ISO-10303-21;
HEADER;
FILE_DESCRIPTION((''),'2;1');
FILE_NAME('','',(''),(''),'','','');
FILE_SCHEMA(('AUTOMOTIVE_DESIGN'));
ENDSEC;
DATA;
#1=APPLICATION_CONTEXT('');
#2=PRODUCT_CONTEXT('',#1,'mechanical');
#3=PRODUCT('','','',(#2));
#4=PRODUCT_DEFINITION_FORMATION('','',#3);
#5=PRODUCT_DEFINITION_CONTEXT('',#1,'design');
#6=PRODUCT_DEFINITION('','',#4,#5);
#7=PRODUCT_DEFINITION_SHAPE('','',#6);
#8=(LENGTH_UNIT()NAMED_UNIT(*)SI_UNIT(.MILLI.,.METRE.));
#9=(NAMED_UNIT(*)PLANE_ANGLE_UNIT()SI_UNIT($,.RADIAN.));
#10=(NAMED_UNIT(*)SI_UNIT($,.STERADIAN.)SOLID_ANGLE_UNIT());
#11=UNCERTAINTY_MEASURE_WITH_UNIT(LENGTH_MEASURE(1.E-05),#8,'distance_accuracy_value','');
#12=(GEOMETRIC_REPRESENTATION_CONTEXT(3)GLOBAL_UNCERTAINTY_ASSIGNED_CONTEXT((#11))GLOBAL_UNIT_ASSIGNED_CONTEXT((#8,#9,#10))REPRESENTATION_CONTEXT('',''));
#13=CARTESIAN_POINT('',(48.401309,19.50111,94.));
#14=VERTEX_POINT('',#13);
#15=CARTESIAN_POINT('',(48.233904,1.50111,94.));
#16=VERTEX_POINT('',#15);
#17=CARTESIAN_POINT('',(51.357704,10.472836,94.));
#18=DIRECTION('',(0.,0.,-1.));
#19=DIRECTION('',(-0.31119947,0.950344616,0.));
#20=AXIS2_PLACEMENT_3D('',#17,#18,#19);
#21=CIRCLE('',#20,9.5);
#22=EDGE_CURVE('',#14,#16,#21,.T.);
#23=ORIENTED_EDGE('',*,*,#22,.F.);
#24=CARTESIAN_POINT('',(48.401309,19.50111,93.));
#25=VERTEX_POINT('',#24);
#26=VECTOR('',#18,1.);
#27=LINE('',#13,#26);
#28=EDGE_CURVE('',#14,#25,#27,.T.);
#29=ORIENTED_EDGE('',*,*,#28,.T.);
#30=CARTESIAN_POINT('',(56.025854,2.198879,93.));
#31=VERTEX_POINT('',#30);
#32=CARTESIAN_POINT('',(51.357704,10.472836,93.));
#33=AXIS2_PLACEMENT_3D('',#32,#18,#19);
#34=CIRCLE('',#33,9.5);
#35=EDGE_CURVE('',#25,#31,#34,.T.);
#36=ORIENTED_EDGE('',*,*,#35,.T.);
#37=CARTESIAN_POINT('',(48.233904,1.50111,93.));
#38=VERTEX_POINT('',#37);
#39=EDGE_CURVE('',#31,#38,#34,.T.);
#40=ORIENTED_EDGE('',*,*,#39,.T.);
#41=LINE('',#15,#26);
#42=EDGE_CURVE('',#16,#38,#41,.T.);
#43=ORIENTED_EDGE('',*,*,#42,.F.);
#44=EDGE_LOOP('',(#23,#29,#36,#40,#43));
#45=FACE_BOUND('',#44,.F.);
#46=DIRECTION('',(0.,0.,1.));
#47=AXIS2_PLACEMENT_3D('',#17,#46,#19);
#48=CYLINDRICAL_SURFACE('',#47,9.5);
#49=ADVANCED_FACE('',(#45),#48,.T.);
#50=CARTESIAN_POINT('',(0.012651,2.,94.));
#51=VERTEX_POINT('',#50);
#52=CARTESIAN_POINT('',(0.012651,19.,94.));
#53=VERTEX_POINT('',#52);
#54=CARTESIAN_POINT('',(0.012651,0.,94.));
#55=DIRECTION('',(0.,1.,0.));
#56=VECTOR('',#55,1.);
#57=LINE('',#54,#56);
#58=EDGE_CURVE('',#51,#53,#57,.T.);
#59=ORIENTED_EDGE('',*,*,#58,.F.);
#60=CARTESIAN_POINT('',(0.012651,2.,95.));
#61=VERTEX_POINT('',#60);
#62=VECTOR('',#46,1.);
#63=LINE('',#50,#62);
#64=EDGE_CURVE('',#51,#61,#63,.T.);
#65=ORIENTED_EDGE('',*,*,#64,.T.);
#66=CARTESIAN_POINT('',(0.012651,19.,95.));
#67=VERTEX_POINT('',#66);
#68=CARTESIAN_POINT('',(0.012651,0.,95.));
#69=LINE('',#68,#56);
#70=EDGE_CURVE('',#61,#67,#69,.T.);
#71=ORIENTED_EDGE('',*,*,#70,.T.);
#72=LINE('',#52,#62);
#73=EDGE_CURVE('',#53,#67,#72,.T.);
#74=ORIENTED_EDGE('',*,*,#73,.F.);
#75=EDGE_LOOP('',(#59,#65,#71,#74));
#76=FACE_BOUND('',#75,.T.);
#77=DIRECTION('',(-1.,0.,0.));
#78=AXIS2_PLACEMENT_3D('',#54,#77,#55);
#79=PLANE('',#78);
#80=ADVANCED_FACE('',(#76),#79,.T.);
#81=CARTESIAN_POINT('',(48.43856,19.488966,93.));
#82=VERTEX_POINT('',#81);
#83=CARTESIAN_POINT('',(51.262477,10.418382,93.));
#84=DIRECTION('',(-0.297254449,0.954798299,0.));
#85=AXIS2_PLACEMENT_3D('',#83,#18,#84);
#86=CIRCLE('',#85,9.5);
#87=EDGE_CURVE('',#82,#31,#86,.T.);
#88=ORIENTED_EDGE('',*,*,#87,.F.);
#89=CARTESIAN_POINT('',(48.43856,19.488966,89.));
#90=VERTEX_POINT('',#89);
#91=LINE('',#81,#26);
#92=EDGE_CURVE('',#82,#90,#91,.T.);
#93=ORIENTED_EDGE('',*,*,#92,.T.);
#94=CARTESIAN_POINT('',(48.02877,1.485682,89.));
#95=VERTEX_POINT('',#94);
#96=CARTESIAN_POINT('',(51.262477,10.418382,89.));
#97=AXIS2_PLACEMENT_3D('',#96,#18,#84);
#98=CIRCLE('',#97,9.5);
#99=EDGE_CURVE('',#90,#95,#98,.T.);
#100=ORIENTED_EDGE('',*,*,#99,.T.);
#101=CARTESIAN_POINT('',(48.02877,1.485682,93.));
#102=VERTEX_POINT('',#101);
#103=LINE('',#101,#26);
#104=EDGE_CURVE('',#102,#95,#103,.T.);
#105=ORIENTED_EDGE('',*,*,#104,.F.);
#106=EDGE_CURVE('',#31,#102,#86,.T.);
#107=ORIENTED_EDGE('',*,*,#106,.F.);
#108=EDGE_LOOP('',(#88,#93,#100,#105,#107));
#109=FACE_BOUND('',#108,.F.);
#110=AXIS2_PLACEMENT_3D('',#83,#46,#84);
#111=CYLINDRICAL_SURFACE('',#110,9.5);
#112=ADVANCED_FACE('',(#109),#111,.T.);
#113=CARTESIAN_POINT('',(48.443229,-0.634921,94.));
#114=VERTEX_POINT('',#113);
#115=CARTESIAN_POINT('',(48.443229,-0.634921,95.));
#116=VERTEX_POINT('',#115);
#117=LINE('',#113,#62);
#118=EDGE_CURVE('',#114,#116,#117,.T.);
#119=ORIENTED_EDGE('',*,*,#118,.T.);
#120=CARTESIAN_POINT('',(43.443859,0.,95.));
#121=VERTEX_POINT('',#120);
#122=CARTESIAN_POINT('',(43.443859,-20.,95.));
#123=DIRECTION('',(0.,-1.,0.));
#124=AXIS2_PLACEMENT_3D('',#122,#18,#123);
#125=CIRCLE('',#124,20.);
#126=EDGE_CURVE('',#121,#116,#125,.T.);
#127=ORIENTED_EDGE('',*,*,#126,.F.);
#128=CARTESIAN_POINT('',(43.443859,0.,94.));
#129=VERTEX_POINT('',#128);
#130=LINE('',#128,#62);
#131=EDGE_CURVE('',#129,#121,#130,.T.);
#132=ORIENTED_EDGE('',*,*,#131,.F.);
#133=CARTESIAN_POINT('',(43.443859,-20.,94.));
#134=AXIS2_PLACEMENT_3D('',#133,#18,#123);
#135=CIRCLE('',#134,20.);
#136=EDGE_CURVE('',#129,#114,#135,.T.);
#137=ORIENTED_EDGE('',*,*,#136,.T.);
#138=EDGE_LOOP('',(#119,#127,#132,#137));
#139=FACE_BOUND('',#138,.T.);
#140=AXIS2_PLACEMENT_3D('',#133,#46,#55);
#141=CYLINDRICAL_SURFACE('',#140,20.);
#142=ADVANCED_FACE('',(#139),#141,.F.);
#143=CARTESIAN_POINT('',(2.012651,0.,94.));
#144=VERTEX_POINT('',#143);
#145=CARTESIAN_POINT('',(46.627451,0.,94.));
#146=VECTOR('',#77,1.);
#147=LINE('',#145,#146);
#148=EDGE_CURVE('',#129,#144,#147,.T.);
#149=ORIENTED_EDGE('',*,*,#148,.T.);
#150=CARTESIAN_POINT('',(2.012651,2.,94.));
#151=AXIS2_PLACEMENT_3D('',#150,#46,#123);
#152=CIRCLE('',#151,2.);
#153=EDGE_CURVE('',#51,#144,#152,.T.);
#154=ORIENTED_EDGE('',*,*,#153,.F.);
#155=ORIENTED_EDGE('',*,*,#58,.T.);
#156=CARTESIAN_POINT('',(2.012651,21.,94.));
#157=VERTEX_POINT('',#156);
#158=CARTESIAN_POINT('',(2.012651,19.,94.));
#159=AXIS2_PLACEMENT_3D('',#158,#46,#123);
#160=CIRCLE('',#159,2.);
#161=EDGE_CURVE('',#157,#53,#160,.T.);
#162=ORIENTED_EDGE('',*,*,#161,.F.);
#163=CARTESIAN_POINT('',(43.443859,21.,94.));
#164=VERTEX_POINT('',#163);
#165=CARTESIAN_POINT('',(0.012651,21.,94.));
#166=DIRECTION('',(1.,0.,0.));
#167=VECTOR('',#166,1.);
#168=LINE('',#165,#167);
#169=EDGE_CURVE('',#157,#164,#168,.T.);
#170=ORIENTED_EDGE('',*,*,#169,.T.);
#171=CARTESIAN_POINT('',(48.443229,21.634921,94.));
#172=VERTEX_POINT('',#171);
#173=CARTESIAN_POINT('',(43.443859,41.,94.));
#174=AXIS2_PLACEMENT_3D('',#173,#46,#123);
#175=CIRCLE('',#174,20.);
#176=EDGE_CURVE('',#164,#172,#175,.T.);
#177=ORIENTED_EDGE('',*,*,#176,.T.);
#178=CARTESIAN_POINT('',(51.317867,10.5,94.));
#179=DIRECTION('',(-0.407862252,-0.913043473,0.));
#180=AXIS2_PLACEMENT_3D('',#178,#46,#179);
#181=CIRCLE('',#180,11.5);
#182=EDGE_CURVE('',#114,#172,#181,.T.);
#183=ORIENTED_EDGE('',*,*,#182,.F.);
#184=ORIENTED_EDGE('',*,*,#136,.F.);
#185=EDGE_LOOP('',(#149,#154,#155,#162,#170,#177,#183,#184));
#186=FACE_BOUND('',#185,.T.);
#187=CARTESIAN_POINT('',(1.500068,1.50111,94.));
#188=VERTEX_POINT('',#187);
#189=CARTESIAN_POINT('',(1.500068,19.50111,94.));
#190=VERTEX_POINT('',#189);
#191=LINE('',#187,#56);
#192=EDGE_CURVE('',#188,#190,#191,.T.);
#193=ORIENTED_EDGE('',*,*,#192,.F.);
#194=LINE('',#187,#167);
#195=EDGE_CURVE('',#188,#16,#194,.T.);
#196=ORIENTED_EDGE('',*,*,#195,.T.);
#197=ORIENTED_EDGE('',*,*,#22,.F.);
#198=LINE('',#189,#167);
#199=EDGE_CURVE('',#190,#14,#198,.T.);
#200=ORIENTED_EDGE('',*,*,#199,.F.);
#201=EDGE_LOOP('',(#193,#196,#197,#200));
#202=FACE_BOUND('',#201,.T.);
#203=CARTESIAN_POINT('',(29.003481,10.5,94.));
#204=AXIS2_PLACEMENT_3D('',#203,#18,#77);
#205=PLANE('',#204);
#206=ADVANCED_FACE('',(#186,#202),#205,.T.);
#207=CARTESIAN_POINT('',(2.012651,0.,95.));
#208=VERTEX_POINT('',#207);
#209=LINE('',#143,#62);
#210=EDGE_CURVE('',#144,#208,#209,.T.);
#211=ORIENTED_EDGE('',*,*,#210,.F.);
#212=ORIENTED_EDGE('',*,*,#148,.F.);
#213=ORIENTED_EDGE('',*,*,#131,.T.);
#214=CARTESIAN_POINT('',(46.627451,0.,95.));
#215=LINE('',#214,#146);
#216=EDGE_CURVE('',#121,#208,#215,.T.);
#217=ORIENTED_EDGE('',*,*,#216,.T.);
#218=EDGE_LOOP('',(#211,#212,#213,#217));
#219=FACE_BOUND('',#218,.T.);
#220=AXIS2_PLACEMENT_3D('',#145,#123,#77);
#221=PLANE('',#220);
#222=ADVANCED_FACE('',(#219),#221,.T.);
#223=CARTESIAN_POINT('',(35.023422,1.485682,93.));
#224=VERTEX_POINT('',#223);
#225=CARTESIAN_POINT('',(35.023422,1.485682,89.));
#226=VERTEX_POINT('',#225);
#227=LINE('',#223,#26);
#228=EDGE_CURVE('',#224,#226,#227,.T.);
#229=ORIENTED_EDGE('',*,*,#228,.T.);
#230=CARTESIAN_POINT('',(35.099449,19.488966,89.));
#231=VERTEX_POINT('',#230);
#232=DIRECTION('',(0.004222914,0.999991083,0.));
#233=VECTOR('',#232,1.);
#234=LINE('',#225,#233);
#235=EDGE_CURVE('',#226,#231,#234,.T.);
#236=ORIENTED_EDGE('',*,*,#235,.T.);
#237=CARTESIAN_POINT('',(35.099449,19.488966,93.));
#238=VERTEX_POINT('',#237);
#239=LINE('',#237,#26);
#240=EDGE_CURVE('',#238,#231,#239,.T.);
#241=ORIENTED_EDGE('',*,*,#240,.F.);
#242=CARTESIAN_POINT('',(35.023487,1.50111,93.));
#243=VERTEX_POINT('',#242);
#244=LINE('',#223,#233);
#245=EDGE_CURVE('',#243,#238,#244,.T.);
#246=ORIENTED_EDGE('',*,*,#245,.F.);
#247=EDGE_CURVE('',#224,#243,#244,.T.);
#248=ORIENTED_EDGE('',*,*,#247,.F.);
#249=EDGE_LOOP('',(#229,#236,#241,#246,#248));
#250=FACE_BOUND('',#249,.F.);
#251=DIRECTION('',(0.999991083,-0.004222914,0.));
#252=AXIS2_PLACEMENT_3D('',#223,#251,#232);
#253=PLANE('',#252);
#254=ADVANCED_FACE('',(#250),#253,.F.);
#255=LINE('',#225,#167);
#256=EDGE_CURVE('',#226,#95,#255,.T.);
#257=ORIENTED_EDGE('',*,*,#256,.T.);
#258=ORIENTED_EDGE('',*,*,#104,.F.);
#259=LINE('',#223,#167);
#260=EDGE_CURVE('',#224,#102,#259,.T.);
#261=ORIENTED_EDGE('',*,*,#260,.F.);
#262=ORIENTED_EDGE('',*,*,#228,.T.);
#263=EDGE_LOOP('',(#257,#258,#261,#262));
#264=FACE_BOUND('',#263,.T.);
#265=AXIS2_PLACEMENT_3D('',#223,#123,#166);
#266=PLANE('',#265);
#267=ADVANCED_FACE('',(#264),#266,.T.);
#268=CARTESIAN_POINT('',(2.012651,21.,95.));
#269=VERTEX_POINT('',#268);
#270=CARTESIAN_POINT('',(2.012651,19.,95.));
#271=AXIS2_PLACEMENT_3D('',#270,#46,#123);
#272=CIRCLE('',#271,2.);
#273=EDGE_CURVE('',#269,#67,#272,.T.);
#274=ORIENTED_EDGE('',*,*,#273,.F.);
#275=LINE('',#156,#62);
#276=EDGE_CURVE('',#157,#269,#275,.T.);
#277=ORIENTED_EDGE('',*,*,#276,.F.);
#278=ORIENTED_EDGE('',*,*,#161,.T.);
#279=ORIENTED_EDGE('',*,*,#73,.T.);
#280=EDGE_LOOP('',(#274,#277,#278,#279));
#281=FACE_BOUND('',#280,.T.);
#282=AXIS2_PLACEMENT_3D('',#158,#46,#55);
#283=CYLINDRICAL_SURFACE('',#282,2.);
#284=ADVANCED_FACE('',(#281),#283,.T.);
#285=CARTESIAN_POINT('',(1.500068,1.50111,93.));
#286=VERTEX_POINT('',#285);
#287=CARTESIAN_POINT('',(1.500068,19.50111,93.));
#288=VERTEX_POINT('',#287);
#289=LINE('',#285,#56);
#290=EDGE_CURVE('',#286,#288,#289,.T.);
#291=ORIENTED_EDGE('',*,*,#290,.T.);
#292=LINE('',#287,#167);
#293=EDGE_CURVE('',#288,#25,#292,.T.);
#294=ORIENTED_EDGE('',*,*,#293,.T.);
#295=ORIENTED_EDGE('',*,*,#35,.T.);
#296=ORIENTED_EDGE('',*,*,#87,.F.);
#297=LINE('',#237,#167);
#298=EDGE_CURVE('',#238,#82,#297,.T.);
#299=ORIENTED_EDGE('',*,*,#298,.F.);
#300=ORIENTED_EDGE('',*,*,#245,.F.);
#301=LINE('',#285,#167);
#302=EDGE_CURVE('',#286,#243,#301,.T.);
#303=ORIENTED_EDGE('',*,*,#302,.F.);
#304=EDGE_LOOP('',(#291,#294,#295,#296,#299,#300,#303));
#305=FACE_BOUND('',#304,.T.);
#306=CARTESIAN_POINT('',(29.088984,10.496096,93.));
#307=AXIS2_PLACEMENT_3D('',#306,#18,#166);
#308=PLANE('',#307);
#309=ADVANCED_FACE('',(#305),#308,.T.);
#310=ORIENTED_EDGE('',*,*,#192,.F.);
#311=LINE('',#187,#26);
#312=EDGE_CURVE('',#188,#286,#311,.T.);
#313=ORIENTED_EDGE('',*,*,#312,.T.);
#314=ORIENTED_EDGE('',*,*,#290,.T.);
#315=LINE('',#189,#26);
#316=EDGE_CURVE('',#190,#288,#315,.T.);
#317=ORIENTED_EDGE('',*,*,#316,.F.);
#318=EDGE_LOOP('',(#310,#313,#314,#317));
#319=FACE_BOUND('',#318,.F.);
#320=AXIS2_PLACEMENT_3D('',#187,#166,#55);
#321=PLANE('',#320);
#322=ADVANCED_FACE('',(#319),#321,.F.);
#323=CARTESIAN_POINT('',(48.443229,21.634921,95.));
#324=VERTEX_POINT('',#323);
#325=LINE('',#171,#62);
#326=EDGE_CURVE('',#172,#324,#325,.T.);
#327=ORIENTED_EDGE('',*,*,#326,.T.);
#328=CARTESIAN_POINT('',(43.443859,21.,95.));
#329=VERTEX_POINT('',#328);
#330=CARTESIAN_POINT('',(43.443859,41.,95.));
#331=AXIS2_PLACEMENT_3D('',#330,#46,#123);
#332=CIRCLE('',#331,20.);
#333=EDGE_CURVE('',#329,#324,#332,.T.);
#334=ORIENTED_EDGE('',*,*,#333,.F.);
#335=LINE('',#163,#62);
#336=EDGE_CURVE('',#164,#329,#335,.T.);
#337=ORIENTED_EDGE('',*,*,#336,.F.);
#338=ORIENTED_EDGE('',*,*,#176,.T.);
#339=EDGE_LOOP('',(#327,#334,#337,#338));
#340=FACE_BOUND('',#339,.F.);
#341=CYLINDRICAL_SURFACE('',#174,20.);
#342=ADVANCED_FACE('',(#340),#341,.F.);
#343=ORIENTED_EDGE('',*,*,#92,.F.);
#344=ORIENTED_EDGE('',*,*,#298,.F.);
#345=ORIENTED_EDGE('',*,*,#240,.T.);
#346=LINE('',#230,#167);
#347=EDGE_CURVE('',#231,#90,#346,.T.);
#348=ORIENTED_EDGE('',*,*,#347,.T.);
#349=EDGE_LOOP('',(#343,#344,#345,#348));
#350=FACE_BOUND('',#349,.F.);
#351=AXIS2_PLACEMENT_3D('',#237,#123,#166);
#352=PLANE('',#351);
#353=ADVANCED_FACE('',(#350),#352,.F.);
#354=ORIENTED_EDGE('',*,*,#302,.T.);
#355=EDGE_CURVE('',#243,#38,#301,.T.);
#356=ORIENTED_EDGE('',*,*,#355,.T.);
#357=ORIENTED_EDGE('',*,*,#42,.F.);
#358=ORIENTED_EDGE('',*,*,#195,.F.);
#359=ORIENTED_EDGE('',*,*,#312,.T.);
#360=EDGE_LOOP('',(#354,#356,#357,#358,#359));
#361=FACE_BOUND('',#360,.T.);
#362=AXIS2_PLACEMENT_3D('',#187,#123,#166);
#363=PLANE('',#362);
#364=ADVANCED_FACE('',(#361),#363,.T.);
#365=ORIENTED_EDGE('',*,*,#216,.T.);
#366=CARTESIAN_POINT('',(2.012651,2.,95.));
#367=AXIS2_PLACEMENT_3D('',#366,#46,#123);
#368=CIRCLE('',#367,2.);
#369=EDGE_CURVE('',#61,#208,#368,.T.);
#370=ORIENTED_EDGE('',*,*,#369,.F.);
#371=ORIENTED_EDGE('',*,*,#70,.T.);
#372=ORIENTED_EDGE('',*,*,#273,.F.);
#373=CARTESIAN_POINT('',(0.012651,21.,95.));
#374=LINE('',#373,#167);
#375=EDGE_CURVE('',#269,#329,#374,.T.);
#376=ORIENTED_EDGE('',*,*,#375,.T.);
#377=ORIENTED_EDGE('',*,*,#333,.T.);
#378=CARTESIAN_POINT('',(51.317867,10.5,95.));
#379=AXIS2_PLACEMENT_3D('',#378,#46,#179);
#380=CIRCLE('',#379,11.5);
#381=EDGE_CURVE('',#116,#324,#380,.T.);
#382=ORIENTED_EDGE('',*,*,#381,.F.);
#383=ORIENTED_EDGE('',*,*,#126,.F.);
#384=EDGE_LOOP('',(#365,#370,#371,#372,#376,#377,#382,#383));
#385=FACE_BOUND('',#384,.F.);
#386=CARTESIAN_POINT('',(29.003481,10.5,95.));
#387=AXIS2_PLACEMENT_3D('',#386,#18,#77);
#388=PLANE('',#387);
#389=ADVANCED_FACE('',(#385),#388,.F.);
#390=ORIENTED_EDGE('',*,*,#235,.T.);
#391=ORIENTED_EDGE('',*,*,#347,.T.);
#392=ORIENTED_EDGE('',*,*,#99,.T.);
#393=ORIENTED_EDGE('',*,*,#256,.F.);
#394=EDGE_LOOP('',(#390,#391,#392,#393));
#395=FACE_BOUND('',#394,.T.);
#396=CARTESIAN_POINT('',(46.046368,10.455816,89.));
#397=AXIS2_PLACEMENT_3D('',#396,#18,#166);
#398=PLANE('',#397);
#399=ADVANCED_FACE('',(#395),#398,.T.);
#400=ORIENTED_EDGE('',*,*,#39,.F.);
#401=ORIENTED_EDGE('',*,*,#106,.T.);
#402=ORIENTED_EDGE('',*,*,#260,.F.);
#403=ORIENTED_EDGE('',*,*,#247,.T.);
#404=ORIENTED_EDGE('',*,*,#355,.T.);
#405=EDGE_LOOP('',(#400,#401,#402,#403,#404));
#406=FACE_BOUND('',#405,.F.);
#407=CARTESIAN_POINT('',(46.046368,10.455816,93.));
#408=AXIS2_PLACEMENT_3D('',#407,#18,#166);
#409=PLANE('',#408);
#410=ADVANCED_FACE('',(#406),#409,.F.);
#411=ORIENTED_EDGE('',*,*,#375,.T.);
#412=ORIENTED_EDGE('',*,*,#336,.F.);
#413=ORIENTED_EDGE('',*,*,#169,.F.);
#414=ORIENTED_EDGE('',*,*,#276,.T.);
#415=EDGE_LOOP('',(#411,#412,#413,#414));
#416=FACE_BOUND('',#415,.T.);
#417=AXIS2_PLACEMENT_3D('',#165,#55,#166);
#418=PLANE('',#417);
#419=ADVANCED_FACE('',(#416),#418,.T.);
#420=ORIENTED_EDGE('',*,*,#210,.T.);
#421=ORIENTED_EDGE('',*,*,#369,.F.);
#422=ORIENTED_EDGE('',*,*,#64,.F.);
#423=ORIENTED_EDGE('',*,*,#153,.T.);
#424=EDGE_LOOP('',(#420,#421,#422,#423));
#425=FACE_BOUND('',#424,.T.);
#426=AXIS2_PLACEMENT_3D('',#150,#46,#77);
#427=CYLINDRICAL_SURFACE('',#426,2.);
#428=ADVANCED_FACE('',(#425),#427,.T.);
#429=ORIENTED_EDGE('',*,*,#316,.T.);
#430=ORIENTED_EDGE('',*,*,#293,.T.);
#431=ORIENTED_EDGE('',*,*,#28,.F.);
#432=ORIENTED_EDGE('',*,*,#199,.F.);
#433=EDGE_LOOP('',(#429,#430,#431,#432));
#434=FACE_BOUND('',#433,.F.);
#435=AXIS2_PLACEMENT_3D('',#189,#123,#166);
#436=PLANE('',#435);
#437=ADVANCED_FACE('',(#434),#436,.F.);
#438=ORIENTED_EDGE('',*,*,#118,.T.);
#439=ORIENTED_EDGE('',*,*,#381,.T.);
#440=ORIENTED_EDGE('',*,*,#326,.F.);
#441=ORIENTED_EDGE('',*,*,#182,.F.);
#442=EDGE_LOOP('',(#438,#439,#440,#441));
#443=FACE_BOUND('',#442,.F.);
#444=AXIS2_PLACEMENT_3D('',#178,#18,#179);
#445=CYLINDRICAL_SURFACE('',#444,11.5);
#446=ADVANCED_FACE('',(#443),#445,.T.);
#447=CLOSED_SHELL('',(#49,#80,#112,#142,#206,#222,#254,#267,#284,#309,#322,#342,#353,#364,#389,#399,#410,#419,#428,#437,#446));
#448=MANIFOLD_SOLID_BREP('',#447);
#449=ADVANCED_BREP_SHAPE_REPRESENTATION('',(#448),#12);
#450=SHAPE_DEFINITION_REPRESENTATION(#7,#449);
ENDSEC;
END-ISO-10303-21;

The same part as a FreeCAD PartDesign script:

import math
import FreeCAD as App
import Part
import Sketcher


def edges_at(feature, points):
    """Names of the edges that pass closest to the given points."""
    edges = feature.Shape.Edges
    near = lambda p: min(range(len(edges)), key=lambda i: edges[i].distToShape(Part.Vertex(*p))[0])
    return sorted({f"Edge{near(p) + 1}" for p in points})

doc = App.newDocument("Part")
body = doc.addObject("PartDesign::Body", "Body")

# Sketch on XY plane
sketch1 = doc.addObject("Sketcher::SketchObject", "Sketch")
body.addObject(sketch1)
sketch1.AttachmentSupport = (doc.XY_Plane, [""])
sketch1.MapMode = "FlatFace"
sketch1.AttachmentOffset = App.Placement(App.Vector(0, 0, 94), App.Rotation())
sketch1.addGeometry([
    Part.LineSegment(App.Vector(47, 21, 0), App.Vector(0, 21, 0)),
    Part.LineSegment(App.Vector(0, 21, 0), App.Vector(0, 0, 0)),
    Part.LineSegment(App.Vector(0, 0, 0), App.Vector(47, 0, 0)),
    Part.ArcOfCircle(Part.Circle(App.Vector(51, 10, 0), App.Vector(0, 0, 1), 12), math.radians(-114), math.radians(114)),
], False)
sketch1.addConstraint([
    Sketcher.Constraint("Coincident", 0, 2, 1, 1),
    Sketcher.Constraint("Coincident", 1, 2, 2, 1),
    Sketcher.Constraint("Coincident", 2, 2, 3, 1),
    Sketcher.Constraint("Coincident", 3, 2, 0, 1),
    Sketcher.Constraint("Horizontal", 0),
    Sketcher.Constraint("Vertical", 1),
    Sketcher.Constraint("Horizontal", 2),
    Sketcher.Constraint("PointOnObject", 1, 2, -1),
    Sketcher.Constraint("Vertical", 2, 2, 3, 2),
    Sketcher.Constraint("Radius", 3, 11.5),
    Sketcher.Constraint("DistanceY", 1, 2, 1, 1, 21.0),
    Sketcher.Constraint("DistanceX", 0, 2, 0, 1, 46.6148),
    Sketcher.Constraint("DistanceX", -1, 1, 0, 2, 0.012651),
])
pad1 = doc.addObject("PartDesign::Pad", "Pad")
body.addObject(pad1)
pad1.Profile = sketch1
pad1.Length = 1

# Sketch on XY plane
sketch2 = doc.addObject("Sketcher::SketchObject", "Sketch001")
body.addObject(sketch2)
sketch2.AttachmentSupport = (doc.XY_Plane, [""])
sketch2.MapMode = "FlatFace"
sketch2.AttachmentOffset = App.Placement(App.Vector(0, 0, 94), App.Rotation())
sketch2.addGeometry([
    Part.LineSegment(App.Vector(2, 20, 0), App.Vector(48, 20, 0)),
    Part.ArcOfCircle(Part.Circle(App.Vector(51, 10, 0), App.Vector(0, 0, 1), 9), math.radians(-109), math.radians(108)),
    Part.LineSegment(App.Vector(48, 2, 0), App.Vector(2, 2, 0)),
    Part.LineSegment(App.Vector(2, 2, 0), App.Vector(2, 20, 0)),
], False)
sketch2.addConstraint([
    Sketcher.Constraint("Coincident", 0, 2, 1, 2),
    Sketcher.Constraint("Coincident", 1, 1, 2, 1),
    Sketcher.Constraint("Coincident", 2, 2, 3, 1),
    Sketcher.Constraint("Coincident", 3, 2, 0, 1),
    Sketcher.Constraint("Horizontal", 0),
    Sketcher.Constraint("Horizontal", 2),
    Sketcher.Constraint("Vertical", 3),
    Sketcher.Constraint("Radius", 1, 9.5),
    Sketcher.Constraint("DistanceY", 3, 1, 3, 2, 18.0),
    Sketcher.Constraint("DistanceX", 0, 1, 0, 2, 46.901241),
    Sketcher.Constraint("DistanceX", 1, 1, 1, 3, 3.1238),
    Sketcher.Constraint("DistanceX", -1, 1, 0, 2, 48.401309),
    Sketcher.Constraint("DistanceY", -1, 1, 0, 2, 19.50111),
])
pad2 = doc.addObject("PartDesign::Pad", "Pad001")
body.addObject(pad2)
pad2.Profile = sketch2
pad2.Length = 1
pad2.Reversed = True
doc.recompute()

fillet = doc.addObject("PartDesign::Fillet", "Fillet")
body.addObject(fillet)
fillet.Base = (pad2, edges_at(pad2, [(46.627, 21, 94.5)]))
fillet.Radius = 20
doc.recompute()

fillet2 = doc.addObject("PartDesign::Fillet", "Fillet001")
body.addObject(fillet2)
fillet2.Base = (fillet, edges_at(fillet, [(0.013, 21, 94.5)]))
fillet2.Radius = 2
doc.recompute()

fillet3 = doc.addObject("PartDesign::Fillet", "Fillet002")
body.addObject(fillet3)
fillet3.Base = (fillet2, edges_at(fillet2, [(0.013, 0, 94.5)]))
fillet3.Radius = 2
doc.recompute()

fillet4 = doc.addObject("PartDesign::Fillet", "Fillet003")
body.addObject(fillet4)
fillet4.Base = (fillet3, edges_at(fillet3, [(46.627, 0, 94.5)]))
fillet4.Radius = 20

# Sketch on XY plane
sketch3 = doc.addObject("Sketcher::SketchObject", "Sketch002")
body.addObject(sketch3)
sketch3.AttachmentSupport = (doc.XY_Plane, [""])
sketch3.MapMode = "FlatFace"
sketch3.AttachmentOffset = App.Placement(App.Vector(0, 0, 93), App.Rotation())
sketch3.addGeometry([
    Part.LineSegment(App.Vector(35, 19, 0), App.Vector(48, 19, 0)),
    Part.ArcOfCircle(Part.Circle(App.Vector(51, 10, 0), App.Vector(0, 0, 1), 9), math.radians(-110), math.radians(107)),
    Part.LineSegment(App.Vector(48, 1, 0), App.Vector(35, 1, 0)),
    Part.LineSegment(App.Vector(35, 1, 0), App.Vector(35, 19, 0)),
], False)
sketch3.addConstraint([
    Sketcher.Constraint("Coincident", 0, 2, 1, 2),
    Sketcher.Constraint("Coincident", 1, 1, 2, 1),
    Sketcher.Constraint("Coincident", 2, 2, 3, 1),
    Sketcher.Constraint("Coincident", 3, 2, 0, 1),
    Sketcher.Constraint("Horizontal", 0),
    Sketcher.Constraint("Horizontal", 2),
    Sketcher.Constraint("Radius", 1, 9.5),
    Sketcher.Constraint("DistanceX", 0, 1, 0, 2, 13.339111),
    Sketcher.Constraint("DistanceX", 2, 2, 2, 1, 13.005348),
    Sketcher.Constraint("DistanceY", 1, 1, 1, 3, 8.9327),
    Sketcher.Constraint("DistanceX", -1, 1, 0, 2, 48.43856),
    Sketcher.Constraint("DistanceX", -1, 1, 1, 1, 48.02877),
    Sketcher.Constraint("DistanceY", -1, 1, 1, 3, 10.418382),
])
pad3 = doc.addObject("PartDesign::Pad", "Pad002")
body.addObject(pad3)
pad3.Profile = sketch3
pad3.Length = 4
pad3.Reversed = True

doc.recompute()
